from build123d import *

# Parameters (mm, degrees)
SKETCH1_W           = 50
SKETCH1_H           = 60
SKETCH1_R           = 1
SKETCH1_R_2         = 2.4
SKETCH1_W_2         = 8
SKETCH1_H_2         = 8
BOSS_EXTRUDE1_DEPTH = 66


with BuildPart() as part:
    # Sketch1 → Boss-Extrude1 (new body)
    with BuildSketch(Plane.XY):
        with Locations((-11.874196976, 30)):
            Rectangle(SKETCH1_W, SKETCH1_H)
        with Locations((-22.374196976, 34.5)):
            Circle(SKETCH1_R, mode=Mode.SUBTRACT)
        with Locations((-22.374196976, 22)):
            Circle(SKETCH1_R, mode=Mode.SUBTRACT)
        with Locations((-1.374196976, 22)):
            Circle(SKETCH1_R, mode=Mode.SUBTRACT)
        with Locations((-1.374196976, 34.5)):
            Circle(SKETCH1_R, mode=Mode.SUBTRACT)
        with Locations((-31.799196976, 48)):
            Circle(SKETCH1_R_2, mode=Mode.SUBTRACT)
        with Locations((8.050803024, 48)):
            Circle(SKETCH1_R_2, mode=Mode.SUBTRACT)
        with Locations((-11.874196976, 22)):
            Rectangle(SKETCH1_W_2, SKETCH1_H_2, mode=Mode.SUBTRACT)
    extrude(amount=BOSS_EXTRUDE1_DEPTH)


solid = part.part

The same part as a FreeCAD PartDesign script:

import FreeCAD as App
import Part
import Sketcher
from FreeCAD import Vector

doc = App.newDocument("Part")
body = doc.addObject("PartDesign::Body", "Body")

sketch1 = body.newObject("Sketcher::SketchObject", "Sketch")
sketch1.AttachmentSupport = (doc.getObject("XY_Plane"), [""])
sketch1.MapMode = "FlatFace"
sketch1.addGeometry([
    Part.LineSegment(Vector(-36.9, 60, 0), Vector(-36.9, 0, 0)),
    Part.LineSegment(Vector(-36.9, 0, 0), Vector(13.1, 0, 0)),
    Part.LineSegment(Vector(13.1, 0, 0), Vector(13.1, 60, 0)),
    Part.LineSegment(Vector(13.1, 60, 0), Vector(-36.9, 60, 0)),
    Part.Circle(Vector(-22.4, 22, 0), Vector(0, 0, 1), 1),
    Part.LineSegment(Vector(-7.9, 18, 0), Vector(-15.9, 18, 0)),
    Part.LineSegment(Vector(-15.9, 18, 0), Vector(-15.9, 26, 0)),
    Part.LineSegment(Vector(-15.9, 26, 0), Vector(-7.9, 26, 0)),
    Part.LineSegment(Vector(-7.9, 26, 0), Vector(-7.9, 18, 0)),
    Part.Circle(Vector(-1.4, 22, 0), Vector(0, 0, 1), 1),
    Part.Circle(Vector(-22.4, 34.5, 0), Vector(0, 0, 1), 1),
    Part.Circle(Vector(-31.8, 48, 0), Vector(0, 0, 1), 2.4),
    Part.Circle(Vector(-1.4, 34.5, 0), Vector(0, 0, 1), 1),
    Part.Circle(Vector(8.1, 48, 0), Vector(0, 0, 1), 2.4),
], False)
sketch1.addConstraint([
    Sketcher.Constraint("Coincident", 0, 2, 1, 1),
    Sketcher.Constraint("Coincident", 1, 2, 2, 1),
    Sketcher.Constraint("Coincident", 2, 2, 3, 1),
    Sketcher.Constraint("Coincident", 3, 2, 0, 1),
    Sketcher.Constraint("Coincident", 5, 2, 6, 1),
    Sketcher.Constraint("Coincident", 6, 2, 7, 1),
    Sketcher.Constraint("Coincident", 7, 2, 8, 1),
    Sketcher.Constraint("Coincident", 8, 2, 5, 1),
    Sketcher.Constraint("Vertical", 0),
    Sketcher.Constraint("Horizontal", 1),
    Sketcher.Constraint("Vertical", 2),
    Sketcher.Constraint("Horizontal", 3),
    Sketcher.Constraint("Horizontal", 5),
    Sketcher.Constraint("Vertical", 6),
    Sketcher.Constraint("Horizontal", 7),
    Sketcher.Constraint("Vertical", 8),
    Sketcher.Constraint("Equal", 4, 9),
    Sketcher.Constraint("Equal", 9, 10),
    Sketcher.Constraint("Equal", 10, 12),
    Sketcher.Constraint("Equal", 11, 13),
    Sketcher.Constraint("PointOnObject", 0, 2, -1),
    Sketcher.Constraint("Horizontal", 4, 3, 9, 3),
    Sketcher.Constraint("Horizontal", 10, 3, 12, 3),
    Sketcher.Constraint("Horizontal", 11, 3, 13, 3),
    Sketcher.Constraint("Vertical", 4, 3, 10, 3),
    Sketcher.Constraint("Vertical", 9, 3, 12, 3),
    Sketcher.Constraint("Equal", 7, 6),
    Sketcher.Constraint("Diameter", 4, 2.0),
    Sketcher.Constraint("Diameter", 11, 4.8),
    Sketcher.Constraint("DistanceX", 1, 1, 1, 2, 50.0),
    Sketcher.Constraint("DistanceX", 5, 2, 5, 1, 8.0),
    Sketcher.Constraint("DistanceY", 0, 2, 0, 1, 60.0),
    Sketcher.Constraint("DistanceY", -1, 1, 4, 3, 22.0),
    Sketcher.Constraint("DistanceY", -1, 1, 11, 3, 48.0),
    Sketcher.Constraint("DistanceY", -1, 1, 5, 2, 18.0),
    Sketcher.Constraint("DistanceX", 4, 3, 9, 3, 21.0),
    Sketcher.Constraint("DistanceX", 0, 2, 5, 2, 21.0),
    Sketcher.Constraint("DistanceY", -1, 1, 10, 3, 34.5),
    Sketcher.Constraint("DistanceX", 0, 2, 4, 3, 14.5),
    Sketcher.Constraint("DistanceX", 11, 3, 13, 3, 39.85),
    Sketcher.Constraint("DistanceX", 11, 3, 10, 3, 9.425),
    Sketcher.Constraint("DistanceX", 4, 3, -1, 1, 22.374197),
])
pad1 = body.newObject("PartDesign::Pad", "Pad")
pad1.Profile = sketch1
pad1.Length = 66

doc.recompute()
